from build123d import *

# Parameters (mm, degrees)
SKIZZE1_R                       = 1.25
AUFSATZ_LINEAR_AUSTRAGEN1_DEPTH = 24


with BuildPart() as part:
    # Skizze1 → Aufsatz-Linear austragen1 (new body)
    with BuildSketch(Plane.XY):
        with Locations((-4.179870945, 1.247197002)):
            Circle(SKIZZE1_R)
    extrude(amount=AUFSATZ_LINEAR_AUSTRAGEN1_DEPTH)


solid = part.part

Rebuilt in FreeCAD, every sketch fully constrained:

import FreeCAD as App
import Part
import Sketcher

doc = App.newDocument("Part")
body = doc.addObject("PartDesign::Body", "Body")

sketch1 = body.newObject("Sketcher::SketchObject", "Sketch")
sketch1.AttachmentSupport = (doc.getObject("XY_Plane"), [""])
sketch1.MapMode = "FlatFace"
sketch1.addGeometry(Part.Circle(App.Vector(-4.2, 1.2, 0), App.Vector(0, 0, 1), 1.2), False)
sketch1.addConstraint([
    Sketcher.Constraint("Diameter", 0, 2.5),
    Sketcher.Constraint("DistanceX", 0, 3, -1, 1, 4.179871),
    Sketcher.Constraint("DistanceY", -1, 1, 0, 3, 1.247197),
])
pad1 = body.newObject("PartDesign::Pad", "Pad")
pad1.Profile = sketch1
pad1.Length = 24

doc.recompute()
